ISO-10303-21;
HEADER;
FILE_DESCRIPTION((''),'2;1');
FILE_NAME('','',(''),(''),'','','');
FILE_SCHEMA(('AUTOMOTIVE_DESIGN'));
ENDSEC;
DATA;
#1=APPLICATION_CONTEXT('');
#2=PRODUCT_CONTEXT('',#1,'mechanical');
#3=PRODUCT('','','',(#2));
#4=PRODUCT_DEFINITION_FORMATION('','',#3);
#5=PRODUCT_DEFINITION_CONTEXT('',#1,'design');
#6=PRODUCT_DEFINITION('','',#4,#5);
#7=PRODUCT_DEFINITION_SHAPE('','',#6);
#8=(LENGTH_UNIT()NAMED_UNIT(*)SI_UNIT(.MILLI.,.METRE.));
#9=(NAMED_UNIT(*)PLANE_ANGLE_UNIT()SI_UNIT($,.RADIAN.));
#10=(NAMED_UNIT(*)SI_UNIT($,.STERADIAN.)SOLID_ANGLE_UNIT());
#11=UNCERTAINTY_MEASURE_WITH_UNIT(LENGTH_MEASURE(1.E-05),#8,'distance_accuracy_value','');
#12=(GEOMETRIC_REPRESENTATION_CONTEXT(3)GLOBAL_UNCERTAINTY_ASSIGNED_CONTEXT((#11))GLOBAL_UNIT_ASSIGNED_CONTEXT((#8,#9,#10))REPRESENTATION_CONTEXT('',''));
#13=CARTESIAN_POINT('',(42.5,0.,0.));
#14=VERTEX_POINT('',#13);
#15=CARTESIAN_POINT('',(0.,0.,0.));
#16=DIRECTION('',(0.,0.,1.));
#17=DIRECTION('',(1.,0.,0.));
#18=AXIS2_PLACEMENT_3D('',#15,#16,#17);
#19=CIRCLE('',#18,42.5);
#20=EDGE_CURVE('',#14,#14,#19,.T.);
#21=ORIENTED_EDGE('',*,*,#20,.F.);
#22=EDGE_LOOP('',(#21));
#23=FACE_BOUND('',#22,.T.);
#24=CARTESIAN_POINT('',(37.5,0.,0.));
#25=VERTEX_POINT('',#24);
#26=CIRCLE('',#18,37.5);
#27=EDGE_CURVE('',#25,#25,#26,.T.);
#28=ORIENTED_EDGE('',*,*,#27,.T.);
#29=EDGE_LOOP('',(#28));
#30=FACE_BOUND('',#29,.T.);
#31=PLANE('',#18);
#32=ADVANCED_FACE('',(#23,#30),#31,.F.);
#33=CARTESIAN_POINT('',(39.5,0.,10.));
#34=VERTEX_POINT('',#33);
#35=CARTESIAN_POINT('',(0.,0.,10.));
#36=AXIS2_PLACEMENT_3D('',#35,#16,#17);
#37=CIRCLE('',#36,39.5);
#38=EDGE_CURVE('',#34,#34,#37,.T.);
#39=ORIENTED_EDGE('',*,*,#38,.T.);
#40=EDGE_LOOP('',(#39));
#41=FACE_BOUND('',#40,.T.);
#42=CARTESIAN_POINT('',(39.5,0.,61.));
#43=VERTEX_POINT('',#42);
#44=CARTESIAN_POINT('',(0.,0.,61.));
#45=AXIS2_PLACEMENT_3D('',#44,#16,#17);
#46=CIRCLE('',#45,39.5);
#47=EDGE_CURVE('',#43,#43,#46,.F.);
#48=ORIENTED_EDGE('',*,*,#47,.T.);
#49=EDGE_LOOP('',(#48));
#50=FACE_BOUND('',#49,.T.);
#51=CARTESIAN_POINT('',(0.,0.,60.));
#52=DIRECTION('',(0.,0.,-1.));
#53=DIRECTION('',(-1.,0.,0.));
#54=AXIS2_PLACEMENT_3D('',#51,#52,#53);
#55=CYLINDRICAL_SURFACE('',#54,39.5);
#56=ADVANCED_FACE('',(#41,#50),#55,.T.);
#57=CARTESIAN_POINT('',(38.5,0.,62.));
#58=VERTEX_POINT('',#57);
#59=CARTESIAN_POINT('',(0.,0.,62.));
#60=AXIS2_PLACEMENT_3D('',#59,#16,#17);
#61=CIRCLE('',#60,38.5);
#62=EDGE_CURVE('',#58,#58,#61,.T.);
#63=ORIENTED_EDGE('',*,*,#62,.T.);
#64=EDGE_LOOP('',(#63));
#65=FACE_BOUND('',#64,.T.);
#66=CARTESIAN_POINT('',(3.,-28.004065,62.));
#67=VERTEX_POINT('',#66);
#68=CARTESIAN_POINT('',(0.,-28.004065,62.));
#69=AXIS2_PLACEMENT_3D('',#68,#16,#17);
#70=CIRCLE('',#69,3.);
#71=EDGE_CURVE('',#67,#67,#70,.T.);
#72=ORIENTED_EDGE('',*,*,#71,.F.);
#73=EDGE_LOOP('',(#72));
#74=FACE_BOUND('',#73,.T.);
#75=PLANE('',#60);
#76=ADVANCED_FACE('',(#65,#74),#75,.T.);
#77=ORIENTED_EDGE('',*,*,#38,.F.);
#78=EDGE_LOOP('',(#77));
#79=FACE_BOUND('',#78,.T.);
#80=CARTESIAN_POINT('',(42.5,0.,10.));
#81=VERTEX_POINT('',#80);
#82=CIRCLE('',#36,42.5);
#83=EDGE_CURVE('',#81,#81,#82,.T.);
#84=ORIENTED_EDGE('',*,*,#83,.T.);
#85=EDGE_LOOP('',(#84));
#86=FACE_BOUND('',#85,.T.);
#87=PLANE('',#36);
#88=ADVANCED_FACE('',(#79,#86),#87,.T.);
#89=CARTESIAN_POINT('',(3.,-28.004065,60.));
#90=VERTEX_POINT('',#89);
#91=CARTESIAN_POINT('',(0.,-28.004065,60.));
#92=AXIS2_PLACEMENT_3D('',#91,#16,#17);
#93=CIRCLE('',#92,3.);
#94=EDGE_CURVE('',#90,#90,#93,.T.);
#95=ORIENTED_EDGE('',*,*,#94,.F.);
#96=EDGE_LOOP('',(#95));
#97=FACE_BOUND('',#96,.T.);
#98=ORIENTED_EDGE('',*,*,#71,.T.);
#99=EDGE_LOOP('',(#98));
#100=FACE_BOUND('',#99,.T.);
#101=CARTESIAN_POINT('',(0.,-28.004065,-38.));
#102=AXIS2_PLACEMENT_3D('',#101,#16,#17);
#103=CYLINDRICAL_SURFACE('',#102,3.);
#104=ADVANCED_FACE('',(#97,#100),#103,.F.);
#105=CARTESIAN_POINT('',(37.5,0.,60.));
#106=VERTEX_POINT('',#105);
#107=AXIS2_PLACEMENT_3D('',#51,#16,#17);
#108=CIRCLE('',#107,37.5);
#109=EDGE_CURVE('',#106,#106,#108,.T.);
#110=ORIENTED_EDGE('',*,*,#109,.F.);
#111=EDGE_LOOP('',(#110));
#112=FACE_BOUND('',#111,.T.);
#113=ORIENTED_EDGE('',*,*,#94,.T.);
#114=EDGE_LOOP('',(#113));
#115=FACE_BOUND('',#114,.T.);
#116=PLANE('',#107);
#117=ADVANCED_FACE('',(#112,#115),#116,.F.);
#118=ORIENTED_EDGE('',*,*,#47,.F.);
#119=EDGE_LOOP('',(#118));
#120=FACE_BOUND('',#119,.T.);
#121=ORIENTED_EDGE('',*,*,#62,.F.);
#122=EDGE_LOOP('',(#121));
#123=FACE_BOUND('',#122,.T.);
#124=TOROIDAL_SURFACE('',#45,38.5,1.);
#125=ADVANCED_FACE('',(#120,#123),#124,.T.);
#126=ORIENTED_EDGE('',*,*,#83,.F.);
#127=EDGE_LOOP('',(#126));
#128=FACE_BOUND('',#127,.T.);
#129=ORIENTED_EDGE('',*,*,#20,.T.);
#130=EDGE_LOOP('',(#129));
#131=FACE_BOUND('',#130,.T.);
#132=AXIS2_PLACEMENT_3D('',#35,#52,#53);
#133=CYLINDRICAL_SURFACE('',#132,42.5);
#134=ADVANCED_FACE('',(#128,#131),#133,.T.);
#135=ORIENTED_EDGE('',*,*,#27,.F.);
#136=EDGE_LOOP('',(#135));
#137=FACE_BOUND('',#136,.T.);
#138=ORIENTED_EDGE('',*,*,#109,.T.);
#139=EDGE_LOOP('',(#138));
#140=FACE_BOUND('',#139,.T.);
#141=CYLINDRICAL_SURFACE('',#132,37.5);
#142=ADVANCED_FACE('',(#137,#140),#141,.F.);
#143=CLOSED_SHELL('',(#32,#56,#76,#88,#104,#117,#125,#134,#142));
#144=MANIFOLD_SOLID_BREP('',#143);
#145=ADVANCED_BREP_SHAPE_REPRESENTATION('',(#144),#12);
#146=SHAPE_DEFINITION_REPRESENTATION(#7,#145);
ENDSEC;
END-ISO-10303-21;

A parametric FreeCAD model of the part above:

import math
import FreeCAD as App
import Part
import Sketcher

V = App.Vector
Q = App.Units.Quantity


def edges_at(feature, points):
    """Names of the edges that pass closest to the given points."""
    edges = feature.Shape.Edges
    near = lambda p: min(range(len(edges)), key=lambda i: edges[i].distToShape(Part.Vertex(*p))[0])
    return sorted({f"Edge{near(p) + 1}" for p in points})

doc = App.newDocument("Part")
body = doc.addObject("PartDesign::Body", "Body")

# Sketch on XY plane
sketch1 = body.newObject("Sketcher::SketchObject", "Sketch")
sketch1.AttachmentSupport = (doc.getObject("XY_Plane"), [""])
sketch1.MapMode = "FlatFace"
sketch1.addGeometry(Part.Circle(V(0, 0, 0), V(0, 0, 1), 42), False)
sketch1.addGeometry(Part.Circle(V(0, 0, 0), V(0, 0, 1), 38), False)
sketch1.addConstraint(Sketcher.Constraint("Coincident", 0, 3, -1, 1))
sketch1.addConstraint(Sketcher.Constraint("Coincident", 1, 3, -1, 1))
sketch1.addConstraint(Sketcher.Constraint("Diameter", 0, Q("85 mm")))
sketch1.addConstraint(Sketcher.Constraint("Diameter", 1, Q("75 mm")))
pad1 = body.newObject("PartDesign::Pad", "Pad")
pad1.Profile = sketch1
pad1.Length = 10

# Sketch on XY plane
sketch2 = body.newObject("Sketcher::SketchObject", "Sketch001")
sketch2.AttachmentSupport = (doc.getObject("XY_Plane"), [""])
sketch2.MapMode = "FlatFace"
sketch2.AttachmentOffset = App.Placement(V(0, 0, 10), App.Rotation())
sketch2.addGeometry(Part.Circle(V(0, 0, 0), V(0, 0, 1), 40), False)
sketch2.addGeometry(Part.Circle(V(0, 0, 0), V(0, 0, 1), 38), False)
sketch2.addConstraint(Sketcher.Constraint("Coincident", 0, 3, -1, 1))
sketch2.addConstraint(Sketcher.Constraint("Coincident", 1, 3, -1, 1))
sketch2.addConstraint(Sketcher.Constraint("Diameter", 0, Q("79 mm")))
sketch2.addConstraint(Sketcher.Constraint("Diameter", 1, Q("75 mm")))
pad2 = body.newObject("PartDesign::Pad", "Pad001")
pad2.Profile = sketch2
pad2.Length = 50

# Sketch on XY plane
sketch3 = body.newObject("Sketcher::SketchObject", "Sketch002")
sketch3.AttachmentSupport = (doc.getObject("XY_Plane"), [""])
sketch3.MapMode = "FlatFace"
sketch3.AttachmentOffset = App.Placement(V(0, 0, 60), App.Rotation())
sketch3.addGeometry(Part.Circle(V(0, 0, 0), V(0, 0, 1), 40), False)
sketch3.addConstraint(Sketcher.Constraint("Coincident", 0, 3, -1, 1))
sketch3.addConstraint(Sketcher.Constraint("Diameter", 0, Q("79 mm")))
pad3 = body.newObject("PartDesign::Pad", "Pad002")
pad3.Profile = sketch3
pad3.Length = 2
doc.recompute()

fillet = body.newObject("PartDesign::Fillet", "Fillet")
fillet.Base = (pad3, edges_at(pad3, [(-39.5, 0, 62)]))
fillet.Radius = 1

# Sketch on XY plane
sketch4 = body.newObject("Sketcher::SketchObject", "Sketch003")
sketch4.AttachmentSupport = (doc.getObject("XY_Plane"), [""])
sketch4.MapMode = "FlatFace"
sketch4.AttachmentOffset = App.Placement(V(0, 0, 62), App.Rotation())
sketch4.addGeometry(Part.ArcOfCircle(Part.Circle(V(0, -28, 0), V(0, 0, 1), 3), math.radians(90), math.radians(270)), False)
sketch4.addGeometry(Part.ArcOfCircle(Part.Circle(V(0, -28, 0), V(0, 0, 1), 3), math.radians(-90), math.radians(0)), False)
sketch4.addGeometry(Part.ArcOfCircle(Part.Circle(V(0, -28, 0), V(0, 0, 1), 3), math.radians(0), math.radians(90)), False)
sketch4.addConstraint(Sketcher.Constraint("Tangent", 0, 2, 1, 1))
sketch4.addConstraint(Sketcher.Constraint("Tangent", 1, 2, 2, 1))
sketch4.addConstraint(Sketcher.Constraint("Tangent", 2, 2, 0, 1))
sketch4.addConstraint(Sketcher.Constraint("PointOnObject", 0, 3, -2))
sketch4.addConstraint(Sketcher.Constraint("PointOnObject", 0, 2, -2))
sketch4.addConstraint(Sketcher.Constraint("PointOnObject", 2, 2, -2))
sketch4.addConstraint(Sketcher.Constraint("Horizontal", 2, 3, 1, 2))
sketch4.addConstraint(Sketcher.Constraint("Radius", 0, Q("3 mm")))
sketch4.addConstraint(Sketcher.Constraint("DistanceY", 0, 3, -1, 1, Q("28.004065 mm")))
pocket1 = body.newObject("PartDesign::Pocket", "Pocket")
pocket1.Profile = sketch4
pocket1.Length = 100

doc.recompute()
